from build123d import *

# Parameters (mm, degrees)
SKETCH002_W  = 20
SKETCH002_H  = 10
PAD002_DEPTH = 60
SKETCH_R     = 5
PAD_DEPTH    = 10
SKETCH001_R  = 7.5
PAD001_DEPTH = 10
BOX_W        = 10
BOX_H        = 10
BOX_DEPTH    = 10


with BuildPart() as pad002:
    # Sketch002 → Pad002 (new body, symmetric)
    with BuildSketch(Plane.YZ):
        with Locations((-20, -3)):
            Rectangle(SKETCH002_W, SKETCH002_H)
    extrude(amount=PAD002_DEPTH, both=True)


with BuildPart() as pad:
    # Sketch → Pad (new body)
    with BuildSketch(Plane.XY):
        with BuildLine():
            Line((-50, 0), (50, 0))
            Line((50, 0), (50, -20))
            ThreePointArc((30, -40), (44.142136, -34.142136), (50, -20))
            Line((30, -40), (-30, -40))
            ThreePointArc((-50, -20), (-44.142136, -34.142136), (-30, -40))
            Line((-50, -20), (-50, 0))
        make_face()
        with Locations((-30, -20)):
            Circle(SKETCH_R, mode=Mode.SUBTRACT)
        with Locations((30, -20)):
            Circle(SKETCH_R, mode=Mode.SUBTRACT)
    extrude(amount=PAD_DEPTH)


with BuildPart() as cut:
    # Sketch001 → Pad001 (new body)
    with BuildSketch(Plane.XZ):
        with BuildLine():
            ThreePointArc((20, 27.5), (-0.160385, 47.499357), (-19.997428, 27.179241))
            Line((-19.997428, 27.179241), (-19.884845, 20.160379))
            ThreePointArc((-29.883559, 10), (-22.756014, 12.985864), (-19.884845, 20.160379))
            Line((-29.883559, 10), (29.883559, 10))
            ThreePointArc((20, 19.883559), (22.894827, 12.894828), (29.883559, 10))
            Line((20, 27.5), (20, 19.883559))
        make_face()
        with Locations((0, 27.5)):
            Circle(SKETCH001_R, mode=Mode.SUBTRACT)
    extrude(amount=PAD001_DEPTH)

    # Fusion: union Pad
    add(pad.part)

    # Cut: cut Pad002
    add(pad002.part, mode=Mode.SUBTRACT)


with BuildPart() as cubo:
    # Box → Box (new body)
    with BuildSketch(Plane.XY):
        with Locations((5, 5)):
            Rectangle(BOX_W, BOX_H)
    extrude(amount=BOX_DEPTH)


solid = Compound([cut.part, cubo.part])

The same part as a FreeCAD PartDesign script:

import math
import FreeCAD as App
import Part
import Sketcher


def add_polygon(sketch, points):
    """Adds a closed chain of lines whose ends are joined by coincident constraints."""
    first, n = sketch.GeometryCount, len(points)
    for a, b in zip(points, points[1:] + points[:1]):
        sketch.addGeometry(Part.LineSegment(App.Vector(*a, 0), App.Vector(*b, 0)), False)
    for i in range(n):
        sketch.addConstraint(Sketcher.Constraint("Coincident", first + i, 2, first + (i + 1) % n, 1))

doc = App.newDocument("Part")
body = doc.addObject("PartDesign::Body", "Body")

# Sketch on YZ plane
sketch1 = doc.addObject("Sketcher::SketchObject", "Sketch")
body.addObject(sketch1)
sketch1.AttachmentSupport = (doc.YZ_Plane, [""])
sketch1.MapMode = "FlatFace"
add_polygon(sketch1, [(-30, 2), (-30, -8), (-10, -8), (-10, 2)])  # lines 0-3
sketch1.addConstraint([
    Sketcher.Constraint("Vertical", 0),
    Sketcher.Constraint("Horizontal", 1),
    Sketcher.Constraint("Vertical", 2),
    Sketcher.Constraint("Horizontal", 3),
    Sketcher.Constraint("DistanceX", 1, 1, 1, 2, 20.0),
    Sketcher.Constraint("DistanceY", 0, 2, 0, 1, 10.0),
    Sketcher.Constraint("DistanceX", 0, 2, -1, 1, 30.0),
    Sketcher.Constraint("DistanceY", 0, 2, -1, 1, 8.0),
])
pad1 = doc.addObject("PartDesign::Pad", "Pad")
body.addObject(pad1)
pad1.Profile = sketch1
pad1.Length = 120
pad1.Midplane = True
body2 = doc.addObject("PartDesign::Body", "Body001")

# Sketch on XY plane
sketch2 = doc.addObject("Sketcher::SketchObject", "Sketch001")
body2.addObject(sketch2)
sketch2.AttachmentSupport = (doc.getObject("XY_Plane001"), [""])
sketch2.MapMode = "FlatFace"
sketch2.addGeometry([
    Part.LineSegment(App.Vector(50, 0, 0), App.Vector(-50, 0, 0)),  # 0
    Part.LineSegment(App.Vector(-50, 0, 0), App.Vector(-50, -20, 0)),  # 1
    Part.ArcOfCircle(Part.Circle(App.Vector(-30, -20, 0), App.Vector(0, 0, 1), 20), math.radians(180), math.radians(270)),  # 2
    Part.LineSegment(App.Vector(-30, -40, 0), App.Vector(30, -40, 0)),  # 3
    Part.ArcOfCircle(Part.Circle(App.Vector(30, -20, 0), App.Vector(0, 0, 1), 20), math.radians(-90), math.radians(0)),  # 4
    Part.LineSegment(App.Vector(50, -20, 0), App.Vector(50, 0, 0)),  # 5
    Part.Circle(App.Vector(30, -20, 0), App.Vector(0, 0, 1), 5),  # 6
    Part.Circle(App.Vector(-30, -20, 0), App.Vector(0, 0, 1), 5),  # 7
], False)
sketch2.addConstraint([
    Sketcher.Constraint("Coincident", 0, 2, 1, 1),
    Sketcher.Constraint("Tangent", 1, 2, 2, 1),
    Sketcher.Constraint("Tangent", 2, 2, 3, 1),
    Sketcher.Constraint("Tangent", 3, 2, 4, 1),
    Sketcher.Constraint("Tangent", 4, 2, 5, 1),
    Sketcher.Constraint("Coincident", 5, 2, 0, 1),
    Sketcher.Constraint("Horizontal", 0),
    Sketcher.Constraint("Vertical", 1),
    Sketcher.Constraint("Horizontal", 3),
    Sketcher.Constraint("Vertical", 5),
    Sketcher.Constraint("Coincident", 6, 3, 4, 3),
    Sketcher.Constraint("Coincident", 7, 3, 2, 3),
    Sketcher.Constraint("Equal", 2, 4),
    Sketcher.Constraint("Equal", 6, 7),
    Sketcher.Constraint("Symmetric", 0, 2, 5, 2, -1, 1),
    Sketcher.Constraint("Diameter", 6, 10.0),
    Sketcher.Constraint("Radius", 2, 19.999999),
    Sketcher.Constraint("DistanceX", 0, 2, 0, 1, 100.0),
    Sketcher.Constraint("DistanceY", 1, 2, 1, 1, 20.0),
])
pad2 = doc.addObject("PartDesign::Pad", "Pad001")
body2.addObject(pad2)
pad2.Profile = sketch2
pad2.Length = 10
body3 = doc.addObject("PartDesign::Body", "Body002")

# Sketch on XZ plane
sketch3 = doc.addObject("Sketcher::SketchObject", "Sketch002")
body3.addObject(sketch3)
sketch3.AttachmentSupport = (doc.getObject("XZ_Plane002"), [""])
sketch3.MapMode = "FlatFace"
sketch3.addGeometry([
    Part.ArcOfCircle(Part.Circle(App.Vector(0, 27, 0), App.Vector(0, 0, 1), 20), math.radians(0), math.radians(181)),  # 0
    Part.LineSegment(App.Vector(-20, 27, 0), App.Vector(-20, 20, 0)),  # 1
    Part.ArcOfCircle(Part.Circle(App.Vector(-30, 20, 0), App.Vector(0, 0, 1), 10), math.radians(-90), math.radians(1)),  # 2
    Part.LineSegment(App.Vector(-30, 10, 0), App.Vector(30, 10, 0)),  # 3
    Part.ArcOfCircle(Part.Circle(App.Vector(30, 20, 0), App.Vector(0, 0, 1), 10), math.radians(-180), math.radians(-90)),  # 4
    Part.LineSegment(App.Vector(20, 20, 0), App.Vector(20, 28, 0)),  # 5
    Part.Circle(App.Vector(0, 28, 0), App.Vector(0, 0, 1), 8),  # 6
], False)
sketch3.addConstraint([
    Sketcher.Constraint("Tangent", 0, 2, 1, 1),
    Sketcher.Constraint("Tangent", 1, 2, 2, 2),
    Sketcher.Constraint("Tangent", 2, 1, 3, 1),
    Sketcher.Constraint("Tangent", 3, 2, 4, 2),
    Sketcher.Constraint("Tangent", 4, 1, 5, 1),
    Sketcher.Constraint("Tangent", 5, 2, 0, 1),
    Sketcher.Constraint("Horizontal", 3),
    Sketcher.Constraint("Vertical", 5),
    Sketcher.Constraint("Coincident", 6, 3, 0, 3),
    Sketcher.Constraint("PointOnObject", 0, 3, -2),
    Sketcher.Constraint("Diameter", 6, 15.0),
    Sketcher.Constraint("Radius", 0, 20.0),
    Sketcher.Constraint("Radius", 2, 10.0),
    Sketcher.Constraint("DistanceY", -1, 1, 2, 3, 20.0),
    Sketcher.Constraint("DistanceY", -1, 1, 0, 3, 27.5),
    Sketcher.Constraint("Radius", 4, 9.883559),
    Sketcher.Constraint("DistanceX", 3, 1, 3, 2, 59.767118),
])
pad3 = doc.addObject("PartDesign::Pad", "Pad002")
body3.addObject(pad3)
pad3.Profile = sketch3
pad3.Length = 10
doc.recompute()

boolean = doc.addObject("PartDesign::Boolean", "Boolean")
body3.addObject(boolean)
boolean.Type = "Fuse"
boolean.addObjects([body2])
doc.recompute()

boolean2 = doc.addObject("PartDesign::Boolean", "Boolean001")
body3.addObject(boolean2)
boolean2.Type = "Cut"
boolean2.addObjects([body])
body4 = doc.addObject("PartDesign::Body", "Body003")

# Sketch on XY plane
sketch4 = doc.addObject("Sketcher::SketchObject", "Sketch003")
body4.addObject(sketch4)
sketch4.AttachmentSupport = (doc.getObject("XY_Plane003"), [""])
sketch4.MapMode = "FlatFace"
add_polygon(sketch4, [(0, 10), (0, 0), (10, 0), (10, 10)])  # lines 0-3
sketch4.addConstraint([
    Sketcher.Constraint("Vertical", 0),
    Sketcher.Constraint("Horizontal", 1),
    Sketcher.Constraint("Vertical", 2),
    Sketcher.Constraint("Horizontal", 3),
    Sketcher.Constraint("Coincident", 0, 2, -1, 1),
    Sketcher.Constraint("Equal", 3, 0),
    Sketcher.Constraint("DistanceX", 1, 1, 1, 2, 10.0),
])
pad4 = doc.addObject("PartDesign::Pad", "Pad003")
body4.addObject(pad4)
pad4.Profile = sketch4
pad4.Length = 10

doc.recompute()
